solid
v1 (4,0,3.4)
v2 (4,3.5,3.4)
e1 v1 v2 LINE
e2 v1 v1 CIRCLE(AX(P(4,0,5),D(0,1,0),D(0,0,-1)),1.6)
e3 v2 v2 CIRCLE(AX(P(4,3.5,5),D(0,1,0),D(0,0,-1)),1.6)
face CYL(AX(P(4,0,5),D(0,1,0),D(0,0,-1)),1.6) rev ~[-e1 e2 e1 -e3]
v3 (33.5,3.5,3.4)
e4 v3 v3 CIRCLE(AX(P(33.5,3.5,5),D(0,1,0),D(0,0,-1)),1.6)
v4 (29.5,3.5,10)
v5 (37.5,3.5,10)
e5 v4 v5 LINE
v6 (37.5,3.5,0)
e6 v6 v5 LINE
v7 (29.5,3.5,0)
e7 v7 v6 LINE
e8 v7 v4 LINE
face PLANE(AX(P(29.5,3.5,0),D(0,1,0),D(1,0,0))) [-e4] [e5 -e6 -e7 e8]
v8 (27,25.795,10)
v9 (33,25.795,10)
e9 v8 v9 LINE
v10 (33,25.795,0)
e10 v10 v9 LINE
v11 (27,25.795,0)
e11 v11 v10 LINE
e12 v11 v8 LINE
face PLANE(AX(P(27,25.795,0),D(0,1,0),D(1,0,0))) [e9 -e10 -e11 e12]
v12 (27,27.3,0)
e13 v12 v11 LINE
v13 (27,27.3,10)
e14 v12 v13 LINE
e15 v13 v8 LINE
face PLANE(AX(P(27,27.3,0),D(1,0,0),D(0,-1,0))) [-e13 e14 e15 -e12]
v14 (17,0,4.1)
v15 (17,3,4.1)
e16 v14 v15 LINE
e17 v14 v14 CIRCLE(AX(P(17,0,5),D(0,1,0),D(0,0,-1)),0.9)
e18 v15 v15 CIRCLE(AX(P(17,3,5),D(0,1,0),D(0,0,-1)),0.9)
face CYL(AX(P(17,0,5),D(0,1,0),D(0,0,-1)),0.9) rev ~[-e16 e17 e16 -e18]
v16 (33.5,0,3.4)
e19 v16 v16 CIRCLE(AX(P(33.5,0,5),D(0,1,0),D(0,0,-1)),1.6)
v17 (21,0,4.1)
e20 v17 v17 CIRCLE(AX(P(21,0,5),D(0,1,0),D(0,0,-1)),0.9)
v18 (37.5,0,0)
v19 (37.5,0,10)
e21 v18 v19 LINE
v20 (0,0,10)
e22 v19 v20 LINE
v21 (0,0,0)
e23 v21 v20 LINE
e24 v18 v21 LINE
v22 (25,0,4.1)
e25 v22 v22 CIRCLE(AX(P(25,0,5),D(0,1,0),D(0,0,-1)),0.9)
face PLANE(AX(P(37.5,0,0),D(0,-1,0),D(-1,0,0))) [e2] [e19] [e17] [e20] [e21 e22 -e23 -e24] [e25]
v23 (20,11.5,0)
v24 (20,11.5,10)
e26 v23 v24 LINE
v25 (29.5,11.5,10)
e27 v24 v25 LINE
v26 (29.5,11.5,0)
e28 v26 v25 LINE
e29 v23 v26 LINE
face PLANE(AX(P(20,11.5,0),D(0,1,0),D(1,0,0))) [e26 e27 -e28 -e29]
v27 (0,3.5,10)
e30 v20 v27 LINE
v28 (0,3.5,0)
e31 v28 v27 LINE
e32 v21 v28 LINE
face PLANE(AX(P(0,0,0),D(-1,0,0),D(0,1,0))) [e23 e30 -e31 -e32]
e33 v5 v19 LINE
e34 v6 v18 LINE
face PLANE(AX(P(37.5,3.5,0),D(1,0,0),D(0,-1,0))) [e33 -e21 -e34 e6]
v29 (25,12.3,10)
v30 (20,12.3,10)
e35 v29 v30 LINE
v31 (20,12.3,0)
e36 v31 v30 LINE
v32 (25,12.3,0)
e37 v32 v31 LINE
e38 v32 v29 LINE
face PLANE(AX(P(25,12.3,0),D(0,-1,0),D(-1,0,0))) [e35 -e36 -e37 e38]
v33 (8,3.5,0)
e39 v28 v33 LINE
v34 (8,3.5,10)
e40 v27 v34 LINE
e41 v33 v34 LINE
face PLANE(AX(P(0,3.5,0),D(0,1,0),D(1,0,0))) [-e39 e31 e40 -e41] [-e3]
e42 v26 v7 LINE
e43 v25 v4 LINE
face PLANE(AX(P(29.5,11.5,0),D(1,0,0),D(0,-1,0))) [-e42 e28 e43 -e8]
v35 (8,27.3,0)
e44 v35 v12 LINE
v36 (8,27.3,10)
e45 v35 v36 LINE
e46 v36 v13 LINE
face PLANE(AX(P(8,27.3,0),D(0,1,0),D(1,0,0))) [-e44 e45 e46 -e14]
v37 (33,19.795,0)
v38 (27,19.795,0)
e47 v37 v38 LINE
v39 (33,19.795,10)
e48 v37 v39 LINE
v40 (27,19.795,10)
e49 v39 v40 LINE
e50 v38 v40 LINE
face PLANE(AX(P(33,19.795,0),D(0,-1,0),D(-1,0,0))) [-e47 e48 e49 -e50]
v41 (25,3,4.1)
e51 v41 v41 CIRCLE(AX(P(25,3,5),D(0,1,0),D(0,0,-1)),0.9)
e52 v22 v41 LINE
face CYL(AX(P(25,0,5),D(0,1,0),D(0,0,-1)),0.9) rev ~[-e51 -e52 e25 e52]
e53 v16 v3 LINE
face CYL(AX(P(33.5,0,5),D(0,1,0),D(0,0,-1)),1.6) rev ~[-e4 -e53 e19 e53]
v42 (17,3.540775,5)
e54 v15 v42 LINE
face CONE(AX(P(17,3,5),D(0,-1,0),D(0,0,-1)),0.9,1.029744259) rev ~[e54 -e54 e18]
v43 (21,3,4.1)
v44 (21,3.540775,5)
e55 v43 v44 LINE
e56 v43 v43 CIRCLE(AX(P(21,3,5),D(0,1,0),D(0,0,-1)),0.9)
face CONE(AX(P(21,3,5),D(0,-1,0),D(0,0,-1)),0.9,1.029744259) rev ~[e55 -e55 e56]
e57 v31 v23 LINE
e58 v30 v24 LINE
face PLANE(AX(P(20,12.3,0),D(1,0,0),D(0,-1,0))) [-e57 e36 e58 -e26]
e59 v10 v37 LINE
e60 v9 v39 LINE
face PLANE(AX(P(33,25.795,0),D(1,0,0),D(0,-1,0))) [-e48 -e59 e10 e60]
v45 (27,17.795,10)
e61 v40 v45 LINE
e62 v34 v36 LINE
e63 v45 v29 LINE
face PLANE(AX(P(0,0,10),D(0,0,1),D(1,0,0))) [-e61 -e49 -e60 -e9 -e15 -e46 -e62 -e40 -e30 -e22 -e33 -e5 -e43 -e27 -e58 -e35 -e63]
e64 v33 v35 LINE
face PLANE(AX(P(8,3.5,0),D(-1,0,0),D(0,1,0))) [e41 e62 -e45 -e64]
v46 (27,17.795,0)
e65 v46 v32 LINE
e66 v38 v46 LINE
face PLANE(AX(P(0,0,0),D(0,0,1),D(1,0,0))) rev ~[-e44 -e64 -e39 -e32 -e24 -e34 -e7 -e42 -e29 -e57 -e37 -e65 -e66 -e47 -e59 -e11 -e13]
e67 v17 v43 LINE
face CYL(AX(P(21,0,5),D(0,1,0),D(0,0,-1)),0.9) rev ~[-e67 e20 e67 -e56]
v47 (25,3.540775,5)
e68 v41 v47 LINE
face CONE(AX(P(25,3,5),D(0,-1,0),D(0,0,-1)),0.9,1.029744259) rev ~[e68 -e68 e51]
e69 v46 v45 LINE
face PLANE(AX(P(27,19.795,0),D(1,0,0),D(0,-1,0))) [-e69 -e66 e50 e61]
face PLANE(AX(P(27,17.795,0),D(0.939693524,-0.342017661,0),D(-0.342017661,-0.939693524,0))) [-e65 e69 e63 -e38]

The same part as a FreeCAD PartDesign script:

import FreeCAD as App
import Part
import Sketcher

V = App.Vector
Q = App.Units.Quantity


def add_polygon(sketch, points):
    """Adds a closed chain of lines whose ends are joined by coincident constraints."""
    first, n = sketch.GeometryCount, len(points)
    for a, b in zip(points, points[1:] + points[:1]):
        sketch.addGeometry(Part.LineSegment(App.Vector(*a, 0), App.Vector(*b, 0)), False)
    for i in range(n):
        sketch.addConstraint(Sketcher.Constraint("Coincident", first + i, 2, first + (i + 1) % n, 1))

doc = App.newDocument("Part")
body = doc.addObject("PartDesign::Body", "Body")

# Sketch on XY plane
sketch1 = body.newObject("Sketcher::SketchObject", "Sketch")
sketch1.AttachmentSupport = (doc.getObject("XY_Plane"), [""])
sketch1.MapMode = "FlatFace"
add_polygon(sketch1, [(0, 3.5), (0, 0), (37.5, 0), (37.5, 3.5), (29.5, 3.5), (29.5, 11.5), (20, 11.5), (20, 12.3), (25, 12.3), (27, 17.795), (27, 19.795), (33, 19.795), (33, 25.795), (27, 25.795), (27, 27.3), (8, 27.3), (8, 3.5)])  # lines 0-16
sketch1.addConstraint([
    Sketcher.Constraint("Vertical", 0),
    Sketcher.Constraint("Horizontal", 1),
    Sketcher.Constraint("Vertical", 2),
    Sketcher.Constraint("Horizontal", 3),
    Sketcher.Constraint("Vertical", 4),
    Sketcher.Constraint("Horizontal", 5),
    Sketcher.Constraint("Vertical", 6),
    Sketcher.Constraint("Horizontal", 7),
    Sketcher.Constraint("Vertical", 9),
    Sketcher.Constraint("Horizontal", 10),
    Sketcher.Constraint("Vertical", 11),
    Sketcher.Constraint("Horizontal", 12),
    Sketcher.Constraint("Vertical", 13),
    Sketcher.Constraint("Horizontal", 14),
    Sketcher.Constraint("Vertical", 15),
    Sketcher.Constraint("Horizontal", 16),
    Sketcher.Constraint("Coincident", 0, 2, -1, 1),
    Sketcher.Constraint("Horizontal", 3, 2, 15, 2),
    Sketcher.Constraint("Vertical", 9, 2, 12, 2),
    Sketcher.Constraint("Equal", 3, 16),
    Sketcher.Constraint("Equal", 16, 4),
    Sketcher.Constraint("Equal", 12, 11),
    Sketcher.Constraint("DistanceX", 3, 2, 3, 1, 8.0),
    Sketcher.Constraint("DistanceX", 10, 1, 10, 2, 6.0),
    Sketcher.Constraint("DistanceX", 14, 2, 14, 1, 19.0),
    Sketcher.Constraint("DistanceY", 9, 1, 9, 2, 2.0),
    Sketcher.Constraint("Angle", 8, Q("70.0002 deg")),
    Sketcher.Constraint("DistanceX", 1, 1, 1, 2, 37.5),
    Sketcher.Constraint("DistanceY", 0, 2, 0, 1, 3.5),
    Sketcher.Constraint("DistanceX", 7, 2, 8, 2, 2.0),
    Sketcher.Constraint("DistanceX", 14, 2, 6, 2, 12.0),
    Sketcher.Constraint("DistanceY", 6, 2, 14, 2, 15.0),
    Sketcher.Constraint("DistanceY", -1, 1, 13, 2, 27.3),
])
pad1 = body.newObject("PartDesign::Pad", "Pad")
pad1.Profile = sketch1
pad1.Length = 10

# Sketch on XZ plane
sketch2 = body.newObject("Sketcher::SketchObject", "Sketch001")
sketch2.AttachmentSupport = (doc.getObject("XZ_Plane"), [""])
sketch2.MapMode = "FlatFace"
sketch2.addGeometry([
    Part.Circle(V(25, 5, 0), V(0, 0, 1), 0.9),
    Part.Circle(V(17, 5, 0), V(0, 0, 1), 0.9),
    Part.Circle(V(21, 5, 0), V(0, 0, 1), 0.9),
], False)
sketch2.addConstraint([
    Sketcher.Constraint("Equal", 0, 1),
    Sketcher.Constraint("Equal", 1, 2),
    Sketcher.Constraint("Horizontal", 0, 3, 1, 3),
    Sketcher.Constraint("Horizontal", 1, 3, 2, 3),
    Sketcher.Constraint("Diameter", 0, 1.8),
    Sketcher.Constraint("DistanceX", -1, 1, 0, 3, 25.0),
    Sketcher.Constraint("DistanceY", -1, 1, 0, 3, 5.0),
    Sketcher.Constraint("DistanceX", -1, 1, 1, 3, 17.0),
    Sketcher.Constraint("DistanceX", -1, 1, 2, 3, 21.0),
])
doc.recompute()
hole = body.newObject("PartDesign::Hole", "Hole")
hole.Profile = sketch2
hole.ThreadType = "None"
hole.Diameter = 1.8
hole.DepthType = "Dimension"
hole.Depth = 3
hole.DrillPoint = "Angled"
hole.DrillPointAngle = 118

# Sketch on XZ plane
sketch3 = body.newObject("Sketcher::SketchObject", "Sketch002")
sketch3.AttachmentSupport = (doc.getObject("XZ_Plane"), [""])
sketch3.MapMode = "FlatFace"
sketch3.addGeometry([
    Part.Circle(V(33.5, 5, 0), V(0, 0, 1), 1.6),
    Part.Circle(V(4, 5, 0), V(0, 0, 1), 1.6),
], False)
sketch3.addConstraint([
    Sketcher.Constraint("Equal", 0, 1),
    Sketcher.Constraint("Horizontal", 0, 3, 1, 3),
    Sketcher.Constraint("Diameter", 0, 3.2),
    Sketcher.Constraint("DistanceY", -1, 1, 0, 3, 5.0),
    Sketcher.Constraint("DistanceX", -1, 1, 1, 3, 4.0),
    Sketcher.Constraint("DistanceX", -1, 1, 0, 3, 33.5),
])
doc.recompute()
hole2 = body.newObject("PartDesign::Hole", "Hole001")
hole2.Profile = sketch3
hole2.ThreadType = "None"
hole2.Diameter = 3.2
hole2.DepthType = "Dimension"
hole2.Depth = 3.5
hole2.DrillPoint = "Angled"
hole2.DrillPointAngle = 118

doc.recompute()
